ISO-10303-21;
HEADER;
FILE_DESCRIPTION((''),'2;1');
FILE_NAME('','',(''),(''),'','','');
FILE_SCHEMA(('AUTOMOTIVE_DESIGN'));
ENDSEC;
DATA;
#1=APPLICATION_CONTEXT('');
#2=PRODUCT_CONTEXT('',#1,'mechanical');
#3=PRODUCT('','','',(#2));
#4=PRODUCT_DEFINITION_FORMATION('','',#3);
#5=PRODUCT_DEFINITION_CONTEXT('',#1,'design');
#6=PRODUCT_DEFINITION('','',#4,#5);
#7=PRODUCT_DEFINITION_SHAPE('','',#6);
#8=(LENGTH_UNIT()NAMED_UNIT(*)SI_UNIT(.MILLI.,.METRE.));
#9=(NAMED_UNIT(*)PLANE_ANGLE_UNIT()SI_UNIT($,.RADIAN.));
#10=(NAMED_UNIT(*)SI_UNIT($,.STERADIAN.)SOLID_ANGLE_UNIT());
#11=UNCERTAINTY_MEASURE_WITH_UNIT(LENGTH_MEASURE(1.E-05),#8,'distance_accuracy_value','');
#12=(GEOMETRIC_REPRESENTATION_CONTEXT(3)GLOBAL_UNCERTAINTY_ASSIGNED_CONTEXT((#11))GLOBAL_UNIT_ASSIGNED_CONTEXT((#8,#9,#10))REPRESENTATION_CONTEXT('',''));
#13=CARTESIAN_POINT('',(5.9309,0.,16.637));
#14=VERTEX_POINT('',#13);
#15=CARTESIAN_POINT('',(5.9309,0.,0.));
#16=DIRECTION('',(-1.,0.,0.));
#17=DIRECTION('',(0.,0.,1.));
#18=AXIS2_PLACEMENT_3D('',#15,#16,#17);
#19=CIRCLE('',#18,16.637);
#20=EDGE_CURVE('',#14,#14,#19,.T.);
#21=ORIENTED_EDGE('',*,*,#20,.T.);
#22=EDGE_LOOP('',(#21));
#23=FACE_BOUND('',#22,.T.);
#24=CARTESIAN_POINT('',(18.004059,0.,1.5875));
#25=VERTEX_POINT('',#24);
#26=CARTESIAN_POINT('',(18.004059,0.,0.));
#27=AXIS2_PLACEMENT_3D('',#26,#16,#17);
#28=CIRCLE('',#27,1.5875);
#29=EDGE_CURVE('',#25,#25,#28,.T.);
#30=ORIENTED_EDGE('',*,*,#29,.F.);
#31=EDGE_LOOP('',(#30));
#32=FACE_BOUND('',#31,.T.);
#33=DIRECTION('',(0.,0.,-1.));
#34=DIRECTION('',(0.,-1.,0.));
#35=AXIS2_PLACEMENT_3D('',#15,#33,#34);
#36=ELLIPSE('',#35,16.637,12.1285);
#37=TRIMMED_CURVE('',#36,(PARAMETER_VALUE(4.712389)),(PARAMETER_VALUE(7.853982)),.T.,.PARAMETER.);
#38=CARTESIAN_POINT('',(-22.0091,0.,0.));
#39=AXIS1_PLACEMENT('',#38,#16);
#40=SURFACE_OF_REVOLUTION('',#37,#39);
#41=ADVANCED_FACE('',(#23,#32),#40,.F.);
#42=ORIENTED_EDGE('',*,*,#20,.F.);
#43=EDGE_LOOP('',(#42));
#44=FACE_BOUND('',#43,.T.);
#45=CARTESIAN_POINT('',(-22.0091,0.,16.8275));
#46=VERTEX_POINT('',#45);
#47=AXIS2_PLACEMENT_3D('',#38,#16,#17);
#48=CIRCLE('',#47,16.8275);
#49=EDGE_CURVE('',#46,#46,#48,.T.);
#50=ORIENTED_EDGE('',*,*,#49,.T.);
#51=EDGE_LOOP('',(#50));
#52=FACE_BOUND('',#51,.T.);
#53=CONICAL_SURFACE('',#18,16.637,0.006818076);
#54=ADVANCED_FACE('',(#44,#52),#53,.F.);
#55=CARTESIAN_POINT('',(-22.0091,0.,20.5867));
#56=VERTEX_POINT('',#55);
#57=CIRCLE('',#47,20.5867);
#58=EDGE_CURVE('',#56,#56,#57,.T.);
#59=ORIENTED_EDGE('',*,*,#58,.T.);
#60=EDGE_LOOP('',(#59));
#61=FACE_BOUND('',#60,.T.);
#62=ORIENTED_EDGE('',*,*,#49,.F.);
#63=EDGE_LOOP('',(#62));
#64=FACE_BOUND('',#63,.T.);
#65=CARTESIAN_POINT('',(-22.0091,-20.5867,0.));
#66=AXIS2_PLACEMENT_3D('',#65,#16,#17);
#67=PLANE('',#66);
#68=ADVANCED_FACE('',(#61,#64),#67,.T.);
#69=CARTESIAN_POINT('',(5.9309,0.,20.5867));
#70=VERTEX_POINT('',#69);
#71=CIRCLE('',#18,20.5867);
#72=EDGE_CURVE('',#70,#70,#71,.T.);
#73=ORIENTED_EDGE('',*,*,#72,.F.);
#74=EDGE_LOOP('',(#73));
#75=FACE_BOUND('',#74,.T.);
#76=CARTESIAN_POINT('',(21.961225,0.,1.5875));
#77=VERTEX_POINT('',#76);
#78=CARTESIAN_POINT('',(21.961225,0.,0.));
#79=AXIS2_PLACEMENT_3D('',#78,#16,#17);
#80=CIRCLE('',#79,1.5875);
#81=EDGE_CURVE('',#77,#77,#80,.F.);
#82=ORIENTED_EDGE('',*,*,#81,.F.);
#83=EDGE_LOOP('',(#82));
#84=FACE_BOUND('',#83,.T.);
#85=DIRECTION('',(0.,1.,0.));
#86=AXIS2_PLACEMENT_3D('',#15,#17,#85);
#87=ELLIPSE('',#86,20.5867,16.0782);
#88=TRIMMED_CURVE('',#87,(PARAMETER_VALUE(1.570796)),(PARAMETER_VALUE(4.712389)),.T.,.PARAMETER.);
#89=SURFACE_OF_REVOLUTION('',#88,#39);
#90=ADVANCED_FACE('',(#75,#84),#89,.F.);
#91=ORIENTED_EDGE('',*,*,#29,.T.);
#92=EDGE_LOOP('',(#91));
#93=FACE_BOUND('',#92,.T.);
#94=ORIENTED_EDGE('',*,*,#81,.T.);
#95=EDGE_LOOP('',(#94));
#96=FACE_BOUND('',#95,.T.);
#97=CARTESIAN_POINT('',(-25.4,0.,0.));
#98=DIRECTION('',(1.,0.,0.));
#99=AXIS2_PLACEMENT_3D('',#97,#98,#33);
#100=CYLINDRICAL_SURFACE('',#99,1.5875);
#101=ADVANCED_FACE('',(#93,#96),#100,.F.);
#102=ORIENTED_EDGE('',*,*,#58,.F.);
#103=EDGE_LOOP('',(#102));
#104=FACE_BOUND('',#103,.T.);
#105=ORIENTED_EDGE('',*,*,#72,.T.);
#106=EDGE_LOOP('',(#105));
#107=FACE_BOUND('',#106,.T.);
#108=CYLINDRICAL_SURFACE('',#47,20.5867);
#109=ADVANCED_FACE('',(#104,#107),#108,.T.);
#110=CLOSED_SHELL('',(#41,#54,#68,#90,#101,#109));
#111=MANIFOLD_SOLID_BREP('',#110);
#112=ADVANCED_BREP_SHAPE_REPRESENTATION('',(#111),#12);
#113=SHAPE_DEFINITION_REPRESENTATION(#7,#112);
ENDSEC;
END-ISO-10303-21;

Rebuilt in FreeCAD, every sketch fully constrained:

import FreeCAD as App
import Part
import Sketcher
from FreeCAD import Vector
Q = App.Units.Quantity

doc = App.newDocument("Part")
body = doc.addObject("PartDesign::Body", "Body")

# Sketch on XY plane
sketch1 = body.newObject("Sketcher::SketchObject", "Sketch")
sketch1.AttachmentSupport = (doc.getObject("XY_Plane"), [""])
sketch1.MapMode = "FlatFace"
sketch1.addGeometry([
    Part.LineSegment(Vector(22.0091, 0, 0), Vector(18.0594, 0, 0)),  # 0
    Part.BSplineCurve([Vector(5.9309, -16.637, 0), Vector(18.0594, -16.637, 0), Vector(18.0594, 0, 0)], [3, 3], [0, 1.570796327], False, 2, [1, 0.707106781, 1], False),  # 1
    Part.LineSegment(Vector(5.9309, -16.637, 0), Vector(-22.0091, -16.8275, 0)),  # 2
    Part.LineSegment(Vector(-22.0091, -16.8275, 0), Vector(-22.0091, -20.5867, 0)),  # 3
    Part.LineSegment(Vector(-22.0091, -20.5867, 0), Vector(5.9309, -20.5867, 0)),  # 4
    Part.BSplineCurve([Vector(5.9309, -20.5867, 0), Vector(22.0091, -20.5867, 0), Vector(22.0091, 0, 0)], [3, 3], [3.141592654, 4.71238898], False, 2, [1, 0.707106781, 1], False),  # 5
], False)
sketch1.addConstraint([
    Sketcher.Constraint("Block", 1),
    Sketcher.Constraint("Block", 5),
    Sketcher.Constraint("Coincident", 0, 2, 1, 2),
    Sketcher.Constraint("Coincident", 1, 1, 2, 1),
    Sketcher.Constraint("Coincident", 2, 2, 3, 1),
    Sketcher.Constraint("Coincident", 3, 2, 4, 1),
    Sketcher.Constraint("Coincident", 4, 2, 5, 1),
    Sketcher.Constraint("Coincident", 5, 2, 0, 1),
    Sketcher.Constraint("Vertical", 3),
    Sketcher.Constraint("Horizontal", 4),
    Sketcher.Constraint("DistanceX", 4, 1, 4, 2, Q("1.1 in")),
    Sketcher.Constraint("DistanceY", 3, 2, 3, 1, Q("0.148 in")),
])
revolution = body.newObject("PartDesign::Revolution", "Revolution")
revolution.Profile = sketch1
revolution.ReferenceAxis = (sketch1, ["H_Axis"])
revolution.Angle = 360

# Sketch on YZ plane
sketch2 = body.newObject("Sketcher::SketchObject", "Sketch001")
sketch2.AttachmentSupport = (doc.getObject("YZ_Plane"), [""])
sketch2.MapMode = "FlatFace"
sketch2.addGeometry(Part.Circle(Vector(0, 0, 0), Vector(0, 0, 1), 1.5875), False)
sketch2.addConstraint([
    Sketcher.Constraint("Coincident", 0, 3, -1, 1),
    Sketcher.Constraint("Diameter", 0, Q("0.125 in")),
])
pocket1 = body.newObject("PartDesign::Pocket", "Pocket")
pocket1.Profile = sketch2
pocket1.Length = Q("2 in")
pocket1.Midplane = True

doc.recompute()
